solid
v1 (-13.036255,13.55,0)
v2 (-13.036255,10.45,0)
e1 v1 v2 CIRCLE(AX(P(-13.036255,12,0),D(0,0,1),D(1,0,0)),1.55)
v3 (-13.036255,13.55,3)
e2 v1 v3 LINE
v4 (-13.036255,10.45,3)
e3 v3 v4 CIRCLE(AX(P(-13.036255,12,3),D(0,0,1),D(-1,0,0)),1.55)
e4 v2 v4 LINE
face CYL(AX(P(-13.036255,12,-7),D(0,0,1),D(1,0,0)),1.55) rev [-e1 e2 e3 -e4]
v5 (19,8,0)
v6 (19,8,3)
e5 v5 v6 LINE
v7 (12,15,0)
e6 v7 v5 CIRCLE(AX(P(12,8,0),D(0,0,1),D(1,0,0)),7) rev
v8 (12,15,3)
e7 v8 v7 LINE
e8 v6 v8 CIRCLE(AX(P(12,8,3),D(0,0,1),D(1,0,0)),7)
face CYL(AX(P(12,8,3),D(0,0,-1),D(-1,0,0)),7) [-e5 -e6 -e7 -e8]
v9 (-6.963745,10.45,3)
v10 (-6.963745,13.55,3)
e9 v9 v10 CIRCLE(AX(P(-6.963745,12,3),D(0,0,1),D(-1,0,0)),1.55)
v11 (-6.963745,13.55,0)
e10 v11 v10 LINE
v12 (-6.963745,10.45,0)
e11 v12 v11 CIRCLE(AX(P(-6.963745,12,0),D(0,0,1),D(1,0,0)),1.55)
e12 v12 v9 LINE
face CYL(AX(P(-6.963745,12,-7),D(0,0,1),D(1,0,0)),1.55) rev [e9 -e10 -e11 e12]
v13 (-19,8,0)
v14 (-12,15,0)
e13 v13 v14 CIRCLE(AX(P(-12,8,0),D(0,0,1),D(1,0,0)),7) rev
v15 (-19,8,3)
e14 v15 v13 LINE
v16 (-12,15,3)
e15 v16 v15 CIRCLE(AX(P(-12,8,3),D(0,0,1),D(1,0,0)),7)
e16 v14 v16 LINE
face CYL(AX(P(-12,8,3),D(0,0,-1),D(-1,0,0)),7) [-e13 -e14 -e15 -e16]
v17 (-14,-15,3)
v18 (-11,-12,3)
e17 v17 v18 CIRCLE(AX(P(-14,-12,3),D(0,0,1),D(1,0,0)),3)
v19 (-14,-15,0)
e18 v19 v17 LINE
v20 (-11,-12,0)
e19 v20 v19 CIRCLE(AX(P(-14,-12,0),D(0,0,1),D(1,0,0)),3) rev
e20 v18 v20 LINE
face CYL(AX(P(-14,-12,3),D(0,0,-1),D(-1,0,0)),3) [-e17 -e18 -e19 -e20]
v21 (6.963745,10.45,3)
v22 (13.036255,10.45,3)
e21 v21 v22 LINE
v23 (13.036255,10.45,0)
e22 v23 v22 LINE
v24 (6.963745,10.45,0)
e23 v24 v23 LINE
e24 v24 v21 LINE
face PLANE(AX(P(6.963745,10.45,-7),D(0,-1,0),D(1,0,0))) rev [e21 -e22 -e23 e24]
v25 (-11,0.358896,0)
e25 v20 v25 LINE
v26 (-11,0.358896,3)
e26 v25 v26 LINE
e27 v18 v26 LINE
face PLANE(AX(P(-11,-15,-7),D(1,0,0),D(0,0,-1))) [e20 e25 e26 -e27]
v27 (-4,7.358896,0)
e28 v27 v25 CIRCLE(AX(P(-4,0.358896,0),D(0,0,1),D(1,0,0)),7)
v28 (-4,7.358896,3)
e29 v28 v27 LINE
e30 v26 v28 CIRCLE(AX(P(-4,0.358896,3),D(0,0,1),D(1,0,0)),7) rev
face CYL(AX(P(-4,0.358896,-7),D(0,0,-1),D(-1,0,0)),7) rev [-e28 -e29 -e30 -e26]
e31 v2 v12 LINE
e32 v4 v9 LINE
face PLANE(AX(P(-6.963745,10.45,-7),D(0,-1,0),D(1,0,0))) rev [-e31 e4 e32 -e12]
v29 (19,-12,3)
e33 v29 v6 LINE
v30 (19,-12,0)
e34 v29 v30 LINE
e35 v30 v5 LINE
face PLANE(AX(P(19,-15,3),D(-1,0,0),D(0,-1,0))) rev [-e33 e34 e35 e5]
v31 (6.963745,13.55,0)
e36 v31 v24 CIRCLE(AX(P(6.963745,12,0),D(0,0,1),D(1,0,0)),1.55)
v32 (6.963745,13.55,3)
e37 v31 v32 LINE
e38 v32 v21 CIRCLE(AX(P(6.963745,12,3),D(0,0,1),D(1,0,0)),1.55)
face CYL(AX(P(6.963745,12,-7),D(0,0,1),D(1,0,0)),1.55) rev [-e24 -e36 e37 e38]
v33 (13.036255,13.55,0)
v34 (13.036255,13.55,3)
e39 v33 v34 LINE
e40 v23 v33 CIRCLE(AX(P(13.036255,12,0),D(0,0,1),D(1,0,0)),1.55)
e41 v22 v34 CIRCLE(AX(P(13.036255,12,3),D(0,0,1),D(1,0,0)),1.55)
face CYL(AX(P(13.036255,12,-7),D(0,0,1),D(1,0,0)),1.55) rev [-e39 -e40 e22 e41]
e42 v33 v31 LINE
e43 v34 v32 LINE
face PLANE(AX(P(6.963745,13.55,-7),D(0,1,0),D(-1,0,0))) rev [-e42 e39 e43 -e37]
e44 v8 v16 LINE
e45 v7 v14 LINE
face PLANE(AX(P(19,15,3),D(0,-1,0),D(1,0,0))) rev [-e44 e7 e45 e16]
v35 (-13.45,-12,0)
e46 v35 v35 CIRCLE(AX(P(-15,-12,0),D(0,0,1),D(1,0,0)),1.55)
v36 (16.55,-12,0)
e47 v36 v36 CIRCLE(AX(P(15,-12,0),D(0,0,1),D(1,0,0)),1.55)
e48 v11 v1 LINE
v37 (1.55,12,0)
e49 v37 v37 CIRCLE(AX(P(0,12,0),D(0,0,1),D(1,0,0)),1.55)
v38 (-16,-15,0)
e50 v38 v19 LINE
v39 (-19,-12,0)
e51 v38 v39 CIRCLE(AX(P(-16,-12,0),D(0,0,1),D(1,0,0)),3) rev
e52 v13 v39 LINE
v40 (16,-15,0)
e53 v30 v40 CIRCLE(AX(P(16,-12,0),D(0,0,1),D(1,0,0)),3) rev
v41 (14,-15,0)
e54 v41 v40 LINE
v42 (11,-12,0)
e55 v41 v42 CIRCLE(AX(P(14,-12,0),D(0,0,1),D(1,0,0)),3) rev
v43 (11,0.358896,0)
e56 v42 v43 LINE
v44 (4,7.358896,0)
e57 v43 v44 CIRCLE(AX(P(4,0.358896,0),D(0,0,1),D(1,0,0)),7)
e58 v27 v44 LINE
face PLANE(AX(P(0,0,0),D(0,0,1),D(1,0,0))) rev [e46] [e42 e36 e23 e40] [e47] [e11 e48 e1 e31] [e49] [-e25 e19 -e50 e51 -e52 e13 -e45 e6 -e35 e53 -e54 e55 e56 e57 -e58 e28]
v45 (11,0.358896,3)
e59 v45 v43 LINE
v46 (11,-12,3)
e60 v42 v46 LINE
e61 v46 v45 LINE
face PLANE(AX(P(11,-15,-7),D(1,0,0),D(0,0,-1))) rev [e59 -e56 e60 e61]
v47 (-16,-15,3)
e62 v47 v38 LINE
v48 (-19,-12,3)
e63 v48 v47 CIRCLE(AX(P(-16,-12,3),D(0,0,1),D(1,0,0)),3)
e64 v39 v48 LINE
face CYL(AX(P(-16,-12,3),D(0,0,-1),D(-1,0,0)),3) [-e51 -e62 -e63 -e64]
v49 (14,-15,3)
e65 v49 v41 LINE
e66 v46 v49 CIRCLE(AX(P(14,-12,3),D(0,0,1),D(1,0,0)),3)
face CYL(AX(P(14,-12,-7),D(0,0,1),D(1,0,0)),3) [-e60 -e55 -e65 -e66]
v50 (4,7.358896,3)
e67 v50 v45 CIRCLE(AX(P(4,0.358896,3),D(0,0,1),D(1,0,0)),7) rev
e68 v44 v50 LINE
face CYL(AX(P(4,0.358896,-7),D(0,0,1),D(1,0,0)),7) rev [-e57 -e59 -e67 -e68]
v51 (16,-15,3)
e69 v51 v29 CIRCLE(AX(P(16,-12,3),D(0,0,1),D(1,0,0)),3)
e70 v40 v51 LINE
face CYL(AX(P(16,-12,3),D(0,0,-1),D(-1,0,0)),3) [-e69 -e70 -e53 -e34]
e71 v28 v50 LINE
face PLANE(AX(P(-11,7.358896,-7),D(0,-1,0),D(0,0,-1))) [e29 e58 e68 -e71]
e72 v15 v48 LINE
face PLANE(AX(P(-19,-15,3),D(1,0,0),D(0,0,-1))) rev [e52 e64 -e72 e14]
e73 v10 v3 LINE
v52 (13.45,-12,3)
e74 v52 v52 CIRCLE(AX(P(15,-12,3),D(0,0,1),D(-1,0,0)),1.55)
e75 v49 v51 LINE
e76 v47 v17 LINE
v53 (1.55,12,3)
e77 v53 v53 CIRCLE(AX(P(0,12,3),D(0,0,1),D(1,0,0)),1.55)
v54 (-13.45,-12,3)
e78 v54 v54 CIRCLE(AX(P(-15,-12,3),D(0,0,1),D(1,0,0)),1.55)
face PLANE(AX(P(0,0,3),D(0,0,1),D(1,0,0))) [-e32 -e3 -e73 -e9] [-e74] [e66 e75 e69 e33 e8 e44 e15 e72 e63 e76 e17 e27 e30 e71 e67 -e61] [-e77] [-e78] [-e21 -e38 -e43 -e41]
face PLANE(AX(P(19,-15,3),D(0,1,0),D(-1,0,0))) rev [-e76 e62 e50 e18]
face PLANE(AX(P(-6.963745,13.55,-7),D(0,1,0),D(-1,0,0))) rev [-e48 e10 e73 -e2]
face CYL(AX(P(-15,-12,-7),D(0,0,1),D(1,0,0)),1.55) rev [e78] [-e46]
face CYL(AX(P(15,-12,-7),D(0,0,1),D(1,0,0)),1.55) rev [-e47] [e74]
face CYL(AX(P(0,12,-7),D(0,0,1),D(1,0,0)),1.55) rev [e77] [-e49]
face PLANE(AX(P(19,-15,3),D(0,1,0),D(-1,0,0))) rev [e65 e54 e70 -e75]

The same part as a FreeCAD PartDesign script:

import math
import FreeCAD as App
import Part
import Sketcher
from FreeCAD import Vector


def edges_at(feature, points):
    """Names of the edges that pass closest to the given points."""
    edges = feature.Shape.Edges
    near = lambda p: min(range(len(edges)), key=lambda i: edges[i].distToShape(Part.Vertex(*p))[0])
    return sorted({f"Edge{near(p) + 1}" for p in points})

doc = App.newDocument("Part")
body = doc.addObject("PartDesign::Body", "Body")

# Sketch on XY plane
sketch1 = body.newObject("Sketcher::SketchObject", "Sketch")
sketch1.AttachmentSupport = (doc.getObject("XY_Plane"), [""])
sketch1.MapMode = "FlatFace"
sketch1.addGeometry([
    Part.LineSegment(Vector(-19, 15, 0), Vector(-19, -15, 0)),
    Part.LineSegment(Vector(-19, -15, 0), Vector(19, -15, 0)),
    Part.LineSegment(Vector(19, -15, 0), Vector(19, 15, 0)),
    Part.LineSegment(Vector(19, 15, 0), Vector(-19, 15, 0)),
], False)
sketch1.addConstraint([
    Sketcher.Constraint("Coincident", 0, 2, 1, 1),
    Sketcher.Constraint("Coincident", 1, 2, 2, 1),
    Sketcher.Constraint("Coincident", 2, 2, 3, 1),
    Sketcher.Constraint("Coincident", 3, 2, 0, 1),
    Sketcher.Constraint("Vertical", 0),
    Sketcher.Constraint("Horizontal", 1),
    Sketcher.Constraint("Vertical", 2),
    Sketcher.Constraint("Horizontal", 3),
    Sketcher.Constraint("Symmetric", 0, 2, 2, 2, -1, 1),
    Sketcher.Constraint("DistanceX", 1, 1, 1, 2, 38.0),
    Sketcher.Constraint("DistanceY", 0, 2, 0, 1, 30.0),
])
pad1 = body.newObject("PartDesign::Pad", "Pad")
pad1.Profile = sketch1
pad1.Length = 3

# Sketch on XY plane
sketch2 = body.newObject("Sketcher::SketchObject", "Sketch001")
sketch2.AttachmentSupport = (doc.getObject("XY_Plane"), [""])
sketch2.MapMode = "FlatFace"
sketch2.AttachmentOffset = App.Placement(Vector(0, 0, 3), App.Rotation())
sketch2.addGeometry([
    Part.Circle(Vector(0, 12, 0), Vector(0, 0, 1), 1.55),  # 0
    Part.Circle(Vector(-15, -12, 0), Vector(0, 0, 1), 1.55),  # 1
    Part.Circle(Vector(15, -12, 0), Vector(0, 0, 1), 1.55),  # 2
    Part.LineSegment(Vector(13.036255, 13.55, 0), Vector(6.963745, 13.55, 0)),  # 3
    Part.ArcOfCircle(Part.Circle(Vector(6.963745, 12, 0), Vector(0, 0, 1), 1.55), math.radians(90), math.radians(270)),  # 4
    Part.LineSegment(Vector(6.963745, 10.45, 0), Vector(13.036255, 10.45, 0)),  # 5
    Part.ArcOfCircle(Part.Circle(Vector(13.036255, 12, 0), Vector(0, 0, 1), 1.55), math.radians(-90), math.radians(90)),  # 6
    Part.LineSegment(Vector(-6.963745, 13.55, 0), Vector(-13.036255, 13.55, 0)),  # 7
    Part.ArcOfCircle(Part.Circle(Vector(-13.036255, 12, 0), Vector(0, 0, 1), 1.55), math.radians(90), math.radians(270)),  # 8
    Part.LineSegment(Vector(-13.036255, 10.45, 0), Vector(-6.963745, 10.45, 0)),  # 9
    Part.ArcOfCircle(Part.Circle(Vector(-6.963745, 12, 0), Vector(0, 0, 1), 1.55), math.radians(-90), math.radians(90)),  # 10
], False)
sketch2.addConstraint([
    Sketcher.Constraint("Tangent", 3, 2, 4, 1),
    Sketcher.Constraint("Tangent", 4, 2, 5, 1),
    Sketcher.Constraint("Tangent", 5, 2, 6, 1),
    Sketcher.Constraint("Tangent", 6, 2, 3, 1),
    Sketcher.Constraint("Tangent", 7, 2, 8, 1),
    Sketcher.Constraint("Tangent", 8, 2, 9, 1),
    Sketcher.Constraint("Tangent", 9, 2, 10, 1),
    Sketcher.Constraint("Tangent", 10, 2, 7, 1),
    Sketcher.Constraint("Horizontal", 3),
    Sketcher.Constraint("Horizontal", 5),
    Sketcher.Constraint("Horizontal", 7),
    Sketcher.Constraint("Horizontal", 9),
    Sketcher.Constraint("Equal", 0, 1),
    Sketcher.Constraint("Equal", 1, 2),
    Sketcher.Constraint("Equal", 2, 4),
    Sketcher.Constraint("Equal", 6, 8),
    Sketcher.Constraint("Symmetric", 1, 3, 2, 3, -2),
    Sketcher.Constraint("Symmetric", 6, 3, 8, 3, -2),
    Sketcher.Constraint("PointOnObject", 0, 3, -2),
    Sketcher.Constraint("Horizontal", 0, 3, 4, 3),
    Sketcher.Constraint("Equal", 5, 7),
    Sketcher.Constraint("Diameter", 0, 3.1),
    Sketcher.Constraint("DistanceY", -1, 1, 0, 3, 12.0),
    Sketcher.Constraint("DistanceX", 1, 3, -1, 1, 15.0),
    Sketcher.Constraint("DistanceY", 1, 3, -1, 1, 12.0),
    Sketcher.Constraint("DistanceX", 8, 3, 4, 3, 20.0),
    Sketcher.Constraint("DistanceX", 3, 2, 3, 1, 6.072511),
])
pocket1 = body.newObject("PartDesign::Pocket", "Pocket")
pocket1.Profile = sketch2
pocket1.Length = 10

# Sketch on XY plane
sketch3 = body.newObject("Sketcher::SketchObject", "Sketch002")
sketch3.AttachmentSupport = (doc.getObject("XY_Plane"), [""])
sketch3.MapMode = "FlatFace"
sketch3.AttachmentOffset = App.Placement(Vector(0, 0, 3), App.Rotation())
sketch3.addGeometry([
    Part.LineSegment(Vector(-11, 7.358896, 0), Vector(-11, -15, 0)),
    Part.LineSegment(Vector(-11, -15, 0), Vector(11, -15, 0)),
    Part.LineSegment(Vector(11, -15, 0), Vector(11, 7.358896, 0)),
    Part.LineSegment(Vector(11, 7.358896, 0), Vector(-11, 7.358896, 0)),
], False)
sketch3.addConstraint([
    Sketcher.Constraint("Coincident", 0, 2, 1, 1),
    Sketcher.Constraint("Coincident", 1, 2, 2, 1),
    Sketcher.Constraint("Coincident", 2, 2, 3, 1),
    Sketcher.Constraint("Coincident", 3, 2, 0, 1),
    Sketcher.Constraint("Vertical", 0),
    Sketcher.Constraint("Horizontal", 1),
    Sketcher.Constraint("Vertical", 2),
    Sketcher.Constraint("Horizontal", 3),
    Sketcher.Constraint("DistanceX", 1, 1, 1, 2, 22.0),
    Sketcher.Constraint("DistanceX", 0, 2, -1, 1, 11.0),
    Sketcher.Constraint("DistanceY", 0, 2, -1, 1, 15.0),
    Sketcher.Constraint("DistanceY", 0, 2, 0, 1, 22.358896),
])
pocket2 = body.newObject("PartDesign::Pocket", "Pocket001")
pocket2.Profile = sketch3
pocket2.Length = 10
doc.recompute()

fillet = body.newObject("PartDesign::Fillet", "Fillet")
fillet.Base = (pocket2, edges_at(pocket2, [(-19, 15, 1.5), (19, 15, 1.5)]))
fillet.Radius = 7
doc.recompute()

fillet2 = body.newObject("PartDesign::Fillet", "Fillet001")
fillet2.Base = (fillet, edges_at(fillet, [(11, 7.359, 1.5), (-11, 7.359, 1.5)]))
fillet2.Radius = 7
doc.recompute()

fillet3 = body.newObject("PartDesign::Fillet", "Fillet002")
fillet3.Base = (fillet2, edges_at(fillet2, [
    (11, -15, 1.5),
    (-11, -15, 1.5),
    (19, -15, 1.5),
    (-19, -15, 1.5),
]))
fillet3.Radius = 3

doc.recompute()
